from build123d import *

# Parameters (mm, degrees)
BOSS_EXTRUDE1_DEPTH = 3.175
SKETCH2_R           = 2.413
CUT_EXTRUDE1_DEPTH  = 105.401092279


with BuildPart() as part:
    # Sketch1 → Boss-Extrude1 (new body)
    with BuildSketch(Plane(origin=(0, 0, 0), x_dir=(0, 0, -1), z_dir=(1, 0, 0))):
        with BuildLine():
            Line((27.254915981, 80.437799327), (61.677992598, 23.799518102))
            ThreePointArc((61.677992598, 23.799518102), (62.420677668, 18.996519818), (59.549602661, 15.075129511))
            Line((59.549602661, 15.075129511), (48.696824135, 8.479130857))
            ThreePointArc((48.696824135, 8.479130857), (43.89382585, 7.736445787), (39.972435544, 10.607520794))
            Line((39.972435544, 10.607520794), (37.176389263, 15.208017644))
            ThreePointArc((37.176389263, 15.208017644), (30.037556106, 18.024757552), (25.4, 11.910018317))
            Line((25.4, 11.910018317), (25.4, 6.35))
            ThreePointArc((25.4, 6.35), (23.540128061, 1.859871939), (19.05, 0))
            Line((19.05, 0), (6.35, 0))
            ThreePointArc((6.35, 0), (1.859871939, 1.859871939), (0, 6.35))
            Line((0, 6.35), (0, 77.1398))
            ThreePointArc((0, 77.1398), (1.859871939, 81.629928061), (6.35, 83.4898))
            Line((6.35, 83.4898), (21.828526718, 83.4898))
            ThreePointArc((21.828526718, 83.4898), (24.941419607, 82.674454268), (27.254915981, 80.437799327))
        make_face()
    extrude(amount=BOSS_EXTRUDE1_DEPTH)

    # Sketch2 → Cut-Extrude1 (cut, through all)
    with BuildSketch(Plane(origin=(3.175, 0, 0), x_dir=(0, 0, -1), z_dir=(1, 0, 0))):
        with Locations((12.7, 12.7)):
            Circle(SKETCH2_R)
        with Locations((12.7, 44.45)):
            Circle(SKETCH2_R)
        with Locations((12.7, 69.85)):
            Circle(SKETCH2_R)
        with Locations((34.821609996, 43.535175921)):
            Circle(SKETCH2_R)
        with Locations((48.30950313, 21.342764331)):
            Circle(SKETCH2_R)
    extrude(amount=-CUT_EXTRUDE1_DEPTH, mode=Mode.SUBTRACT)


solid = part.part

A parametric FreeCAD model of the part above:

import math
import FreeCAD as App
import Part
import Sketcher

V = App.Vector
Q = App.Units.Quantity

doc = App.newDocument("Part")
body = doc.addObject("PartDesign::Body", "Body")

# Sketch on YZ plane
sketch1 = doc.addObject("Sketcher::SketchObject", "Sketch")
body.addObject(sketch1)
sketch1.AttachmentSupport = (doc.YZ_Plane, [""])
sketch1.MapMode = "FlatFace"
sketch1.addGeometry(Part.LineSegment(V(24, -62, 0), V(80, -27, 0)), False)
sketch1.addGeometry(Part.ArcOfCircle(Part.Circle(V(77, -22, 0), V(0, 0, 1), 6), math.radians(-59), math.radians(0)), False)
sketch1.addGeometry(Part.LineSegment(V(83, -22, 0), V(83, -6, 0)), False)
sketch1.addGeometry(Part.ArcOfCircle(Part.Circle(V(77, -6, 0), V(0, 0, 1), 6), math.radians(0), math.radians(90)), False)
sketch1.addGeometry(Part.LineSegment(V(77, 0, 0), V(6, 0, 0)), False)
sketch1.addGeometry(Part.ArcOfCircle(Part.Circle(V(6, -6, 0), V(0, 0, 1), 6), math.radians(90), math.radians(180)), False)
sketch1.addGeometry(Part.LineSegment(V(0, -6, 0), V(0, -19, 0)), False)
sketch1.addGeometry(Part.ArcOfCircle(Part.Circle(V(6, -19, 0), V(0, 0, 1), 6), math.radians(180), math.radians(270)), False)
sketch1.addGeometry(Part.LineSegment(V(6, -25, 0), V(12, -25, 0)), False)
sketch1.addGeometry(Part.ArcOfCircle(Part.Circle(V(12, -32, 0), V(0, 0, 1), 6), math.radians(-59), math.radians(90)), False)
sketch1.addGeometry(Part.LineSegment(V(15, -37, 0), V(11, -40, 0)), False)
sketch1.addGeometry(Part.ArcOfCircle(Part.Circle(V(14, -45, 0), V(0, 0, 1), 6), math.radians(121), math.radians(211)), False)
sketch1.addGeometry(Part.LineSegment(V(8, -49, 0), V(15, -60, 0)), False)
sketch1.addGeometry(Part.ArcOfCircle(Part.Circle(V(21, -56, 0), V(0, 0, 1), 6), math.radians(-149), math.radians(-59)), False)
sketch1.addConstraint(Sketcher.Constraint("Tangent", 0, 2, 1, 1))
sketch1.addConstraint(Sketcher.Constraint("Tangent", 1, 2, 2, 1))
sketch1.addConstraint(Sketcher.Constraint("Tangent", 2, 2, 3, 1))
sketch1.addConstraint(Sketcher.Constraint("Tangent", 3, 2, 4, 1))
sketch1.addConstraint(Sketcher.Constraint("Tangent", 4, 2, 5, 1))
sketch1.addConstraint(Sketcher.Constraint("Tangent", 5, 2, 6, 1))
sketch1.addConstraint(Sketcher.Constraint("Tangent", 6, 2, 7, 1))
sketch1.addConstraint(Sketcher.Constraint("Tangent", 7, 2, 8, 1))
sketch1.addConstraint(Sketcher.Constraint("Tangent", 8, 2, 9, 2))
sketch1.addConstraint(Sketcher.Constraint("Tangent", 9, 1, 10, 1))
sketch1.addConstraint(Sketcher.Constraint("Tangent", 10, 2, 11, 1))
sketch1.addConstraint(Sketcher.Constraint("Tangent", 11, 2, 12, 1))
sketch1.addConstraint(Sketcher.Constraint("Tangent", 12, 2, 13, 1))
sketch1.addConstraint(Sketcher.Constraint("Tangent", 13, 2, 0, 1))
sketch1.addConstraint(Sketcher.Constraint("Vertical", 2))
sketch1.addConstraint(Sketcher.Constraint("Horizontal", 4))
sketch1.addConstraint(Sketcher.Constraint("Vertical", 6))
sketch1.addConstraint(Sketcher.Constraint("Horizontal", 8))
sketch1.addConstraint(Sketcher.Constraint("Equal", 1, 3))
sketch1.addConstraint(Sketcher.Constraint("Equal", 3, 5))
sketch1.addConstraint(Sketcher.Constraint("Equal", 5, 7))
sketch1.addConstraint(Sketcher.Constraint("Equal", 7, 9))
sketch1.addConstraint(Sketcher.Constraint("Equal", 9, 11))
sketch1.addConstraint(Sketcher.Constraint("Equal", 11, 13))
sketch1.addConstraint(Sketcher.Constraint("PointOnObject", 3, 2, -1))
sketch1.addConstraint(Sketcher.Constraint("PointOnObject", 5, 2, -2))
sketch1.addConstraint(Sketcher.Constraint("Parallel", 0, 10))
sketch1.addConstraint(Sketcher.Constraint("Perpendicular", 10, 12))
sketch1.addConstraint(Sketcher.Constraint("Radius", 1, Q("0.25 in")))
sketch1.addConstraint(Sketcher.Constraint("DistanceY", 6, 2, 6, 1, Q("0.5 in")))
sketch1.addConstraint(Sketcher.Constraint("Distance", 12, Q("0.5 in")))
sketch1.addConstraint(Sketcher.Constraint("DistanceX", 4, 2, 4, 1, Q("2.787 in")))
sketch1.addConstraint(Sketcher.Constraint("Angle", 0, Q("31.29 deg")))
sketch1.addConstraint(Sketcher.Constraint("DistanceX", 8, 1, 8, 2, Q("5.560018 mm")))
sketch1.addConstraint(Sketcher.Constraint("DistanceX", 9, 3, 11, 3, Q("1.995502 mm")))
pad1 = doc.addObject("PartDesign::Pad", "Pad")
body.addObject(pad1)
pad1.Profile = sketch1
pad1.Length = Q("0.125 in")

# Sketch on YZ plane
sketch2 = doc.addObject("Sketcher::SketchObject", "Sketch001")
body.addObject(sketch2)
sketch2.AttachmentSupport = (doc.YZ_Plane, [""])
sketch2.MapMode = "FlatFace"
sketch2.AttachmentOffset = App.Placement(V(0, 0, 0.125 * 25.4), App.Rotation())
sketch2.addGeometry(Part.Circle(V(12.7, -12.7, 0), V(0, 0, 1), 2.4), False)
sketch2.addGeometry(Part.Circle(V(44.5, -12.7, 0), V(0, 0, 1), 2.4), False)
sketch2.addGeometry(Part.Circle(V(69.8, -12.7, 0), V(0, 0, 1), 2.4), False)
sketch2.addGeometry(Part.Circle(V(43.5, -34.8, 0), V(0, 0, 1), 2.4), False)
sketch2.addGeometry(Part.Circle(V(21.3, -48.3, 0), V(0, 0, 1), 2.4), False)
sketch2.addConstraint(Sketcher.Constraint("Equal", 0, 1))
sketch2.addConstraint(Sketcher.Constraint("Equal", 1, 2))
sketch2.addConstraint(Sketcher.Constraint("Equal", 2, 3))
sketch2.addConstraint(Sketcher.Constraint("Equal", 3, 4))
sketch2.addConstraint(Sketcher.Constraint("Horizontal", 0, 3, 1, 3))
sketch2.addConstraint(Sketcher.Constraint("Horizontal", 1, 3, 2, 3))
sketch2.addConstraint(Sketcher.Constraint("Diameter", 0, Q("0.19 in")))
sketch2.addConstraint(Sketcher.Constraint("DistanceX", 1, 3, 2, 3, Q("1 in")))
sketch2.addConstraint(Sketcher.Constraint("DistanceX", -1, 1, 0, 3, Q("0.5 in")))
sketch2.addConstraint(Sketcher.Constraint("DistanceY", 0, 3, -1, 1, Q("0.5 in")))
sketch2.addConstraint(Sketcher.Constraint("DistanceX", -1, 1, 1, 3, Q("1.75 in")))
sketch2.addConstraint(Sketcher.Constraint("DistanceY", 3, 3, -1, 1, Q("34.82161 mm")))
sketch2.addConstraint(Sketcher.Constraint("DistanceX", 4, 3, 3, 3, Q("22.192412 mm")))
sketch2.addConstraint(Sketcher.Constraint("DistanceX", -1, 1, 3, 3, Q("43.535176 mm")))
sketch2.addConstraint(Sketcher.Constraint("DistanceY", 4, 3, -1, 1, Q("48.309503 mm")))
pocket1 = doc.addObject("PartDesign::Pocket", "Pocket")
body.addObject(pocket1)
pocket1.Profile = sketch2
pocket1.Type = "ThroughAll"

doc.recompute()
